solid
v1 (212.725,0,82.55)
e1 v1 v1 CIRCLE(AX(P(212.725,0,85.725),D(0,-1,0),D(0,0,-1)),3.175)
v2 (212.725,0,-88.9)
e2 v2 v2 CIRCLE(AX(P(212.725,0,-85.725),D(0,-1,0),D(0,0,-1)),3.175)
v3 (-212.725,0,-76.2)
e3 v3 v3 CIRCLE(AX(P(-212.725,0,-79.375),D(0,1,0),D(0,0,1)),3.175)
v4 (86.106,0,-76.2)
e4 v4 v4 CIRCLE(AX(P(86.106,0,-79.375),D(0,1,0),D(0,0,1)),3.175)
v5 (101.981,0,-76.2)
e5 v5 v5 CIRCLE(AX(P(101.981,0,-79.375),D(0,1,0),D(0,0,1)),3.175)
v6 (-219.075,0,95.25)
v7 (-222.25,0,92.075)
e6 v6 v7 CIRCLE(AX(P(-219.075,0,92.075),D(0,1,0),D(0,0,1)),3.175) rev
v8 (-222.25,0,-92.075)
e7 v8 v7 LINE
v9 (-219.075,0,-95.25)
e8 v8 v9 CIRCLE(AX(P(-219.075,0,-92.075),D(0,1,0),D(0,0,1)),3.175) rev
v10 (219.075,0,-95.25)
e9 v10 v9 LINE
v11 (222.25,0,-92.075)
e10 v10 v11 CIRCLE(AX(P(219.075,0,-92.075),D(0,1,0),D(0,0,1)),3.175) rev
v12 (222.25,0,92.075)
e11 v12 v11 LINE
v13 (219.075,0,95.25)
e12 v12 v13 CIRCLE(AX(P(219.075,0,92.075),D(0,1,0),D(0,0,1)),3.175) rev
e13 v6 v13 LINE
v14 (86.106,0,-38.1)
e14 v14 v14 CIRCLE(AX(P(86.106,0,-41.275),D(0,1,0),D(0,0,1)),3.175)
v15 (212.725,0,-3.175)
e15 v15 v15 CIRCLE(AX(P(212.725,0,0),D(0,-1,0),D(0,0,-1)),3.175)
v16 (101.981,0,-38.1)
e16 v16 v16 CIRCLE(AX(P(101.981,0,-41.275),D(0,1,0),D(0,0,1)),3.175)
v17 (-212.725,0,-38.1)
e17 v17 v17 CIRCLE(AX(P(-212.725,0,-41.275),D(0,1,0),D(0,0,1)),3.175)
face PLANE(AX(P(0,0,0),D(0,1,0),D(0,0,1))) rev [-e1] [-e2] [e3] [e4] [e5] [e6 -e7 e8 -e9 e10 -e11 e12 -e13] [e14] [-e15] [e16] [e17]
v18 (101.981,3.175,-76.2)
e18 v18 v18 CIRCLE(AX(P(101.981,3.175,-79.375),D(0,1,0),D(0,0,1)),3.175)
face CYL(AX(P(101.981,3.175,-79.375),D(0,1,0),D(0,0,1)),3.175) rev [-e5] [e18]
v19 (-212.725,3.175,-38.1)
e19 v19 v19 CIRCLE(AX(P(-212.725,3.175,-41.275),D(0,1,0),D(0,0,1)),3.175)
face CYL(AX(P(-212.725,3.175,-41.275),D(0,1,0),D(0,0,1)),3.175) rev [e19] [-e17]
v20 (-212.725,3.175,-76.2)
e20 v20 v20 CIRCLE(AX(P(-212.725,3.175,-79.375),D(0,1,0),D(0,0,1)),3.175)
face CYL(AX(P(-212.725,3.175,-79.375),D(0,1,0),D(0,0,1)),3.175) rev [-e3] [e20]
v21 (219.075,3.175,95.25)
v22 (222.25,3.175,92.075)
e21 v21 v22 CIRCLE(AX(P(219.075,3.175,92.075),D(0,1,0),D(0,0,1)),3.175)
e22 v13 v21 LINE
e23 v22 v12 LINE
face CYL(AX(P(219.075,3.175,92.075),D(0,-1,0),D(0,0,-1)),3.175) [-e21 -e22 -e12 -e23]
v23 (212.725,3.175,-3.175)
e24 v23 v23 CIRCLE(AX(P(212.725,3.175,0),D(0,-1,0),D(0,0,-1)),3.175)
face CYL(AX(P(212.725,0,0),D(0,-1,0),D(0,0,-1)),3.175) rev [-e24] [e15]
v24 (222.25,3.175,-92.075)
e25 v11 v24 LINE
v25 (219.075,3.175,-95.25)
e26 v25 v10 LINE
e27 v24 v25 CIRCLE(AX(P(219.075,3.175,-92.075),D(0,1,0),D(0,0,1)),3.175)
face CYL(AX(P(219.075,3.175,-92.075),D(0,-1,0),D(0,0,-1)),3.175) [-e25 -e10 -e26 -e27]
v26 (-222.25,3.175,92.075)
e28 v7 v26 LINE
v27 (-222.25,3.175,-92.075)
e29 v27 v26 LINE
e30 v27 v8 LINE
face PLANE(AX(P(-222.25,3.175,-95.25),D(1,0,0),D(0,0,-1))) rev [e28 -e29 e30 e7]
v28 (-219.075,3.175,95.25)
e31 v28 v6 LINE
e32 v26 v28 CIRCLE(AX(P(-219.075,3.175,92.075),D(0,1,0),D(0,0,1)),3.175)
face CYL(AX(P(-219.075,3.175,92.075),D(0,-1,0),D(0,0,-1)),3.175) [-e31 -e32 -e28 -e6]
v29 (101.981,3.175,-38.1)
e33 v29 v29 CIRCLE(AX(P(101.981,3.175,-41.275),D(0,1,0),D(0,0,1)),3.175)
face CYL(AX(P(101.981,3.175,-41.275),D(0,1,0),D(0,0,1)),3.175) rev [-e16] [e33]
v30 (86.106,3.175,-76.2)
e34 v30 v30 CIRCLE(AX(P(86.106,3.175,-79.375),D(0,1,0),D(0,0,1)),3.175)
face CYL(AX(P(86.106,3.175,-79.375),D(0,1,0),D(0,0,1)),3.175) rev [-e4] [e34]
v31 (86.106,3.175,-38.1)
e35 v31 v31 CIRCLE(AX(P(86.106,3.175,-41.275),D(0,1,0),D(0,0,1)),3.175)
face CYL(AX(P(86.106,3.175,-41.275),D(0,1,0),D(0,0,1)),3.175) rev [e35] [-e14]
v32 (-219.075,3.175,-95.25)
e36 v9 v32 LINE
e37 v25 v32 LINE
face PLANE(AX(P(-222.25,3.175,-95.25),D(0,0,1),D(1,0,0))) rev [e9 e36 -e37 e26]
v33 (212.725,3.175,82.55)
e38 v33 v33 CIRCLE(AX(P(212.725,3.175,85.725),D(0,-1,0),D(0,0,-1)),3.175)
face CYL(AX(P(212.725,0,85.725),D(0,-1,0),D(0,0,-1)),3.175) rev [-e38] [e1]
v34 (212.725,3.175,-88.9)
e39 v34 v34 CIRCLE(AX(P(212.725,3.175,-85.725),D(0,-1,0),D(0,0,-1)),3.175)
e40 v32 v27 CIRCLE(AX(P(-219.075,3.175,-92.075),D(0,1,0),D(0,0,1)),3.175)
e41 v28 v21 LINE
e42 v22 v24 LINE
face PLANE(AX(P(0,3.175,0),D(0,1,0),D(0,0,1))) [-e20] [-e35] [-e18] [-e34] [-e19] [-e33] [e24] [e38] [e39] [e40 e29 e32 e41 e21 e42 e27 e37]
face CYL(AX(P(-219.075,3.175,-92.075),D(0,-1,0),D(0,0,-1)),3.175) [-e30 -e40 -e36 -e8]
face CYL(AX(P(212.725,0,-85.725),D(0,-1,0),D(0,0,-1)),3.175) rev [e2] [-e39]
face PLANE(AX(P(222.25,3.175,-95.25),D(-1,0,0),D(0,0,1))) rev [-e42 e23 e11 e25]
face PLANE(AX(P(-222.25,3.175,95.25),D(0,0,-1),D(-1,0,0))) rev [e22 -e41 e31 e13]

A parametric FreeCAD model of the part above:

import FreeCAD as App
import Part
import Sketcher
from FreeCAD import Vector
Q = App.Units.Quantity


def edges_at(feature, points):
    """Names of the edges that pass closest to the given points."""
    edges = feature.Shape.Edges
    near = lambda p: min(range(len(edges)), key=lambda i: edges[i].distToShape(Part.Vertex(*p))[0])
    return sorted({f"Edge{near(p) + 1}" for p in points})


def add_polygon(sketch, points):
    """Adds a closed chain of lines whose ends are joined by coincident constraints."""
    first, n = sketch.GeometryCount, len(points)
    for a, b in zip(points, points[1:] + points[:1]):
        sketch.addGeometry(Part.LineSegment(App.Vector(*a, 0), App.Vector(*b, 0)), False)
    for i in range(n):
        sketch.addConstraint(Sketcher.Constraint("Coincident", first + i, 2, first + (i + 1) % n, 1))

doc = App.newDocument("Part")
body = doc.addObject("PartDesign::Body", "Body")

# Sketch on XZ plane
sketch1 = body.newObject("Sketcher::SketchObject", "Sketch")
sketch1.AttachmentSupport = (doc.getObject("XZ_Plane"), [""])
sketch1.MapMode = "FlatFace"
add_polygon(sketch1, [(-222.25, -95.25), (-222.25, 95.25), (222.25, 95.25), (222.25, -95.25)])  # lines 0-3
sketch1.addConstraint([
    Sketcher.Constraint("Vertical", 0),
    Sketcher.Constraint("Horizontal", 1),
    Sketcher.Constraint("Vertical", 2),
    Sketcher.Constraint("Horizontal", 3),
    Sketcher.Constraint("Symmetric", 0, 2, 2, 2, -1, 1),
    Sketcher.Constraint("DistanceX", 1, 1, 1, 2, Q("17.5 in")),
    Sketcher.Constraint("DistanceY", 0, 1, 0, 2, Q("7.5 in")),
])
pad1 = body.newObject("PartDesign::Pad", "Pad")
pad1.Profile = sketch1
pad1.Length = Q("0.125 in")
pad1.Reversed = True

# Sketch on XZ plane
sketch2 = body.newObject("Sketcher::SketchObject", "Sketch001")
sketch2.AttachmentSupport = (doc.getObject("XZ_Plane"), [""])
sketch2.MapMode = "FlatFace"
sketch2.AttachmentOffset = App.Placement(Vector(0, 0, -0.125 * 25.4), App.Rotation())
sketch2.addGeometry([
    Part.Circle(Vector(-212.725, -79.375, 0), Vector(0, 0, 1), 3.175),  # 0
    Part.Circle(Vector(-212.725, -41.275, 0), Vector(0, 0, 1), 3.175),  # 1
    Part.Circle(Vector(101.981, -79.375, 0), Vector(0, 0, 1), 3.175),  # 2
    Part.Circle(Vector(101.981, -41.275, 0), Vector(0, 0, 1), 3.175),  # 3
    Part.Circle(Vector(86.106, -79.375, 0), Vector(0, 0, 1), 3.175),  # 4
    Part.Circle(Vector(86.106, -41.275, 0), Vector(0, 0, 1), 3.175),  # 5
], False)
sketch2.addConstraint([
    Sketcher.Constraint("Equal", 0, 1),
    Sketcher.Constraint("Equal", 1, 2),
    Sketcher.Constraint("Equal", 2, 3),
    Sketcher.Constraint("Equal", 3, 4),
    Sketcher.Constraint("Equal", 4, 5),
    Sketcher.Constraint("Horizontal", 0, 3, 2, 3),
    Sketcher.Constraint("Horizontal", 1, 3, 3, 3),
    Sketcher.Constraint("Horizontal", 2, 3, 4, 3),
    Sketcher.Constraint("Horizontal", 3, 3, 5, 3),
    Sketcher.Constraint("Vertical", 0, 3, 1, 3),
    Sketcher.Constraint("Vertical", 2, 3, 3, 3),
    Sketcher.Constraint("Vertical", 4, 3, 5, 3),
    Sketcher.Constraint("Diameter", 0, Q("0.25 in")),
    Sketcher.Constraint("DistanceY", 0, 3, 1, 3, Q("1.5 in")),
    Sketcher.Constraint("DistanceX", -1, 1, 4, 3, Q("3.39 in")),
    Sketcher.Constraint("DistanceX", 0, 3, 2, 3, Q("12.39 in")),
    Sketcher.Constraint("DistanceX", 0, 3, -1, 1, Q("8.375 in")),
    Sketcher.Constraint("DistanceY", 0, 3, -1, 1, Q("3.125 in")),
])
doc.recompute()
hole = body.newObject("PartDesign::Hole", "Hole")
hole.Profile = sketch2
hole.ThreadType = "None"
hole.Diameter = Q("0.25 in")
hole.DepthType = "ThroughAll"
hole.Reversed = True
doc.recompute()

fillet = body.newObject("PartDesign::Fillet", "Fillet")
fillet.Base = (hole, edges_at(hole, [
    (222.25, 1.587, 95.25),
    (-222.25, 1.587, 95.25),
    (-222.25, 1.587, -95.25),
    (222.25, 1.587, -95.25),
]))
fillet.Radius = Q("0.125 in")

# Sketch on XZ plane
sketch3 = body.newObject("Sketcher::SketchObject", "Sketch002")
sketch3.AttachmentSupport = (doc.getObject("XZ_Plane"), [""])
sketch3.MapMode = "FlatFace"
sketch3.addGeometry([
    Part.Circle(Vector(212.725, -85.725, 0), Vector(0, 0, 1), 3.175),
    Part.Circle(Vector(212.725, 0, 0), Vector(0, 0, 1), 3.175),
    Part.Circle(Vector(212.725, 85.725, 0), Vector(0, 0, 1), 3.175),
], False)
sketch3.addConstraint([
    Sketcher.Constraint("Equal", 0, 1),
    Sketcher.Constraint("Equal", 1, 2),
    Sketcher.Constraint("Symmetric", 0, 3, 2, 3, -1),
    Sketcher.Constraint("PointOnObject", 1, 3, -1),
    Sketcher.Constraint("Vertical", 0, 3, 1, 3),
    Sketcher.Constraint("Diameter", 0, Q("0.25 in")),
    Sketcher.Constraint("DistanceY", 0, 3, 2, 3, Q("6.75 in")),
    Sketcher.Constraint("DistanceX", -1, 1, 0, 3, Q("8.375 in")),
])
doc.recompute()
hole2 = body.newObject("PartDesign::Hole", "Hole001")
hole2.Profile = sketch3
hole2.ThreadType = "None"
hole2.Diameter = Q("0.25 in")
hole2.DepthType = "ThroughAll"

doc.recompute()
